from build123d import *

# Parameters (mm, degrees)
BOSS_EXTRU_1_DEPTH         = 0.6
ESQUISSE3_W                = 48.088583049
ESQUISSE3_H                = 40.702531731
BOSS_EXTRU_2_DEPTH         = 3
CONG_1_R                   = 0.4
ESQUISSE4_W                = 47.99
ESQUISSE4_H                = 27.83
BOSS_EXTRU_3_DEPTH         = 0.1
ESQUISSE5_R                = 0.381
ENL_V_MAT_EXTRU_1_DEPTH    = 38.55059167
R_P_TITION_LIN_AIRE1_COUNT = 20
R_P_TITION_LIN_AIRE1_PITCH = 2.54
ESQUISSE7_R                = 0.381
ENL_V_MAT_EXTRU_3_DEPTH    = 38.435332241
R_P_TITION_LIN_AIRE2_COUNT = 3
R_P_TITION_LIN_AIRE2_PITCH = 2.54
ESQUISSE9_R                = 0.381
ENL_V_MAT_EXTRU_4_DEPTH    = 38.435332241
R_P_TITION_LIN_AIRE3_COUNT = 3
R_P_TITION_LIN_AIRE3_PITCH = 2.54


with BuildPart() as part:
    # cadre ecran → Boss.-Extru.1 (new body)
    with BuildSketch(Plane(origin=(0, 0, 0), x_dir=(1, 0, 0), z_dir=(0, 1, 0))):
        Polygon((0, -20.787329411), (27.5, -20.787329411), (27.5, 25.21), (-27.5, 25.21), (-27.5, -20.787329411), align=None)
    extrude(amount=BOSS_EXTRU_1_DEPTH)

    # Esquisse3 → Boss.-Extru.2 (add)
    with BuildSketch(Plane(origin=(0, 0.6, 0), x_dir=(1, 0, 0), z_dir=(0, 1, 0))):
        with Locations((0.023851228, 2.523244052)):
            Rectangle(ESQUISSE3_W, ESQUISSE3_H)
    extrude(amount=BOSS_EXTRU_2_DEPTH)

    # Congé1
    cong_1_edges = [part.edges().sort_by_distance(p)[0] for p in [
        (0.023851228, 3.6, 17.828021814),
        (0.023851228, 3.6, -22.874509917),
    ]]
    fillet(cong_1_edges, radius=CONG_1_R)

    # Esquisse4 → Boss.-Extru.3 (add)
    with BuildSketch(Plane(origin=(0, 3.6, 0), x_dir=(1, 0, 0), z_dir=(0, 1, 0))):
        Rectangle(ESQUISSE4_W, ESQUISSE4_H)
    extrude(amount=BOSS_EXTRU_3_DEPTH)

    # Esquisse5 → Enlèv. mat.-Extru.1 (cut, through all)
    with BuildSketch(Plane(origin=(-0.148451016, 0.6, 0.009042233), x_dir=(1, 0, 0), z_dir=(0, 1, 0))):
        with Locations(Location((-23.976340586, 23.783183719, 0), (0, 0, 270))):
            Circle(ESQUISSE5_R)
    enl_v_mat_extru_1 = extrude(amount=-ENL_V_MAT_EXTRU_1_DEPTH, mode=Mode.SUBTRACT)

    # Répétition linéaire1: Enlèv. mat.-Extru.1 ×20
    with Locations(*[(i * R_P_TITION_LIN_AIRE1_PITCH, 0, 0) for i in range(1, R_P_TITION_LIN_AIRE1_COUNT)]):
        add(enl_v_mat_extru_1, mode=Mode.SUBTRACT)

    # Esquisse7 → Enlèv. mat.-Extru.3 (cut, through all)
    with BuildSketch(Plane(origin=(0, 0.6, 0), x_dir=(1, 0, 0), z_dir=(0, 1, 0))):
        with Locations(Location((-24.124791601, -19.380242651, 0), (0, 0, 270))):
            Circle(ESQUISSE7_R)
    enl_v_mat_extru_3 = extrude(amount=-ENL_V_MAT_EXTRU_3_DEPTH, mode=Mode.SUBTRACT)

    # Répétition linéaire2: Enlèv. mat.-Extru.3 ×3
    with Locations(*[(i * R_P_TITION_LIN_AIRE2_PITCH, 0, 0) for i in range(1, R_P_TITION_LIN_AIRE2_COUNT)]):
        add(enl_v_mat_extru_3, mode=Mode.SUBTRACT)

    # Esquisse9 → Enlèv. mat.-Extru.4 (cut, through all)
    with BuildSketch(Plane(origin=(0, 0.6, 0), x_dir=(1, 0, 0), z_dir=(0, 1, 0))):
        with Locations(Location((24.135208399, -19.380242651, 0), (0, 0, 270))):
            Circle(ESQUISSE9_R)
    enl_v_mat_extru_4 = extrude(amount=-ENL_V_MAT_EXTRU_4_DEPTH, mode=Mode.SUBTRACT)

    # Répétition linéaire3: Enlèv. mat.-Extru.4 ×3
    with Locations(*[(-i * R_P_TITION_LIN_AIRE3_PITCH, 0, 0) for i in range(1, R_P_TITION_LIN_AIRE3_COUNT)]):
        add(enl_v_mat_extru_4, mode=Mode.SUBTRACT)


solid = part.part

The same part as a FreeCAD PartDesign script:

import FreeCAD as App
import Part
import Sketcher

V = App.Vector
Q = App.Units.Quantity


def edges_at(feature, points):
    """Names of the edges that pass closest to the given points."""
    edges = feature.Shape.Edges
    near = lambda p: min(range(len(edges)), key=lambda i: edges[i].distToShape(Part.Vertex(*p))[0])
    return sorted({f"Edge{near(p) + 1}" for p in points})


def add_polygon(sketch, points):
    """Adds a closed chain of lines whose ends are joined by coincident constraints."""
    first, n = sketch.GeometryCount, len(points)
    for a, b in zip(points, points[1:] + points[:1]):
        sketch.addGeometry(Part.LineSegment(App.Vector(*a, 0), App.Vector(*b, 0)), False)
    for i in range(n):
        sketch.addConstraint(Sketcher.Constraint("Coincident", first + i, 2, first + (i + 1) % n, 1))

doc = App.newDocument("Part")
body = doc.addObject("PartDesign::Body", "Body")

# Sketch on XZ plane
sketch1 = body.newObject("Sketcher::SketchObject", "Sketch")
sketch1.AttachmentSupport = (doc.getObject("XZ_Plane"), [""])
sketch1.MapMode = "FlatFace"
add_polygon(sketch1, [(28, 21), (28, -25), (-28, -25), (-28, 21)])  # lines 0-3
sketch1.addConstraint([
    Sketcher.Constraint("Vertical", 0),
    Sketcher.Constraint("Horizontal", 1),
    Sketcher.Constraint("Vertical", 2),
    Sketcher.Constraint("Horizontal", 3),
    Sketcher.Constraint("DistanceX", 1, 2, 1, 1, Q("55 mm")),
    Sketcher.Constraint("DistanceX", -1, 1, 0, 2, Q("27.5 mm")),
    Sketcher.Constraint("DistanceY", 0, 2, -1, 1, Q("25.21 mm")),
    Sketcher.Constraint("DistanceY", 0, 2, 0, 1, Q("45.997329 mm")),
])
pad1 = body.newObject("PartDesign::Pad", "Pad")
pad1.Profile = sketch1
pad1.Length = 0.6
pad1.Reversed = True

# Sketch on XZ plane
sketch2 = body.newObject("Sketcher::SketchObject", "Sketch001")
sketch2.AttachmentSupport = (doc.getObject("XZ_Plane"), [""])
sketch2.MapMode = "FlatFace"
sketch2.AttachmentOffset = App.Placement(V(0, 0, -0.6), App.Rotation())
add_polygon(sketch2, [(-24, -23), (-24, 18), (24, 18), (24, -23)])  # lines 0-3
sketch2.addConstraint([
    Sketcher.Constraint("Vertical", 0),
    Sketcher.Constraint("Horizontal", 1),
    Sketcher.Constraint("Vertical", 2),
    Sketcher.Constraint("Horizontal", 3),
    Sketcher.Constraint("DistanceY", 0, 1, 0, 2, Q("40.702532 mm")),
    Sketcher.Constraint("DistanceX", 1, 1, 1, 2, Q("48.088583 mm")),
    Sketcher.Constraint("DistanceX", 0, 2, -1, 1, Q("24.02044 mm")),
    Sketcher.Constraint("DistanceY", -1, 1, 0, 2, Q("17.828022 mm")),
])
pad2 = body.newObject("PartDesign::Pad", "Pad001")
pad2.Profile = sketch2
pad2.Length = 3
pad2.Reversed = True
doc.recompute()

fillet = body.newObject("PartDesign::Fillet", "Fillet")
fillet.Base = (pad2, edges_at(pad2, [(0.024, 3.6, 17.828), (0.024, 3.6, -22.875)]))
fillet.Radius = 0.4

# Sketch on XZ plane
sketch3 = body.newObject("Sketcher::SketchObject", "Sketch002")
sketch3.AttachmentSupport = (doc.getObject("XZ_Plane"), [""])
sketch3.MapMode = "FlatFace"
sketch3.AttachmentOffset = App.Placement(V(0, 0, -3.6), App.Rotation())
add_polygon(sketch3, [(-24, -14), (-24, 14), (24, 14), (24, -14)])  # lines 0-3
sketch3.addConstraint([
    Sketcher.Constraint("Vertical", 0),
    Sketcher.Constraint("Horizontal", 1),
    Sketcher.Constraint("Vertical", 2),
    Sketcher.Constraint("Horizontal", 3),
    Sketcher.Constraint("Symmetric", 0, 2, 2, 2, -1, 1),
    Sketcher.Constraint("DistanceX", 1, 1, 1, 2, Q("47.99 mm")),
    Sketcher.Constraint("DistanceY", 0, 1, 0, 2, Q("27.83 mm")),
])
pad3 = body.newObject("PartDesign::Pad", "Pad002")
pad3.Profile = sketch3
pad3.Length = 0.1
pad3.Reversed = True

# Sketch on XZ plane
sketch4 = body.newObject("Sketcher::SketchObject", "Sketch003")
sketch4.AttachmentSupport = (doc.getObject("XZ_Plane"), [""])
sketch4.MapMode = "FlatFace"
sketch4.AttachmentOffset = App.Placement(V(0, 0, -0.6), App.Rotation())
sketch4.addGeometry(Part.Circle(V(-24.12, -23.77, 0), V(0, 0, 1), 0.38), False)
sketch4.addConstraint([
    Sketcher.Constraint("Diameter", 0, Q("0.762 mm")),
    Sketcher.Constraint("DistanceX", 0, 3, -1, 1, Q("24.124792 mm")),
    Sketcher.Constraint("DistanceY", 0, 3, -1, 1, Q("23.774141 mm")),
])
pocket1 = body.newObject("PartDesign::Pocket", "Pocket")
pocket1.Profile = sketch4
pocket1.Type = "ThroughAll"
pocket1.Reversed = True
doc.recompute()

linearpattern = body.newObject("PartDesign::LinearPattern", "LinearPattern")
linearpattern.Originals = [pocket1]
linearpattern.Direction = (doc.getObject("X_Axis"), [""])
linearpattern.Mode = "offset"
linearpattern.Offset = 2.54
linearpattern.Occurrences = 20
body.Tip = linearpattern

# Sketch on XZ plane
sketch5 = body.newObject("Sketcher::SketchObject", "Sketch004")
sketch5.AttachmentSupport = (doc.getObject("XZ_Plane"), [""])
sketch5.MapMode = "FlatFace"
sketch5.AttachmentOffset = App.Placement(V(0, 0, -0.6), App.Rotation())
sketch5.addGeometry(Part.Circle(V(-24.12, 19.38, 0), V(0, 0, 1), 0.38), False)
sketch5.addConstraint([
    Sketcher.Constraint("Diameter", 0, Q("0.762 mm")),
    Sketcher.Constraint("DistanceX", 0, 3, -1, 1, Q("24.124792 mm")),
    Sketcher.Constraint("DistanceY", -1, 1, 0, 3, Q("19.380243 mm")),
])
pocket2 = body.newObject("PartDesign::Pocket", "Pocket001")
pocket2.Profile = sketch5
pocket2.Type = "ThroughAll"
pocket2.Reversed = True
doc.recompute()

linearpattern2 = body.newObject("PartDesign::LinearPattern", "LinearPattern001")
linearpattern2.Originals = [pocket2]
linearpattern2.Direction = (doc.getObject("X_Axis"), [""])
linearpattern2.Mode = "offset"
linearpattern2.Offset = 2.54
linearpattern2.Occurrences = 3
body.Tip = linearpattern2

# Sketch on XZ plane
sketch6 = body.newObject("Sketcher::SketchObject", "Sketch005")
sketch6.AttachmentSupport = (doc.getObject("XZ_Plane"), [""])
sketch6.MapMode = "FlatFace"
sketch6.AttachmentOffset = App.Placement(V(0, 0, -0.6), App.Rotation())
sketch6.addGeometry(Part.Circle(V(24.14, 19.38, 0), V(0, 0, 1), 0.38), False)
sketch6.addConstraint([
    Sketcher.Constraint("Diameter", 0, Q("0.762 mm")),
    Sketcher.Constraint("DistanceX", -1, 1, 0, 3, Q("24.135208 mm")),
    Sketcher.Constraint("DistanceY", -1, 1, 0, 3, Q("19.380243 mm")),
])
pocket3 = body.newObject("PartDesign::Pocket", "Pocket002")
pocket3.Profile = sketch6
pocket3.Type = "ThroughAll"
pocket3.Reversed = True
doc.recompute()

linearpattern3 = body.newObject("PartDesign::LinearPattern", "LinearPattern002")
linearpattern3.Originals = [pocket3]
linearpattern3.Direction = (doc.getObject("X_Axis"), [""])
linearpattern3.Mode = "offset"
linearpattern3.Offset = 2.54
linearpattern3.Occurrences = 3
linearpattern3.Reversed = True
body.Tip = linearpattern3

doc.recompute()
